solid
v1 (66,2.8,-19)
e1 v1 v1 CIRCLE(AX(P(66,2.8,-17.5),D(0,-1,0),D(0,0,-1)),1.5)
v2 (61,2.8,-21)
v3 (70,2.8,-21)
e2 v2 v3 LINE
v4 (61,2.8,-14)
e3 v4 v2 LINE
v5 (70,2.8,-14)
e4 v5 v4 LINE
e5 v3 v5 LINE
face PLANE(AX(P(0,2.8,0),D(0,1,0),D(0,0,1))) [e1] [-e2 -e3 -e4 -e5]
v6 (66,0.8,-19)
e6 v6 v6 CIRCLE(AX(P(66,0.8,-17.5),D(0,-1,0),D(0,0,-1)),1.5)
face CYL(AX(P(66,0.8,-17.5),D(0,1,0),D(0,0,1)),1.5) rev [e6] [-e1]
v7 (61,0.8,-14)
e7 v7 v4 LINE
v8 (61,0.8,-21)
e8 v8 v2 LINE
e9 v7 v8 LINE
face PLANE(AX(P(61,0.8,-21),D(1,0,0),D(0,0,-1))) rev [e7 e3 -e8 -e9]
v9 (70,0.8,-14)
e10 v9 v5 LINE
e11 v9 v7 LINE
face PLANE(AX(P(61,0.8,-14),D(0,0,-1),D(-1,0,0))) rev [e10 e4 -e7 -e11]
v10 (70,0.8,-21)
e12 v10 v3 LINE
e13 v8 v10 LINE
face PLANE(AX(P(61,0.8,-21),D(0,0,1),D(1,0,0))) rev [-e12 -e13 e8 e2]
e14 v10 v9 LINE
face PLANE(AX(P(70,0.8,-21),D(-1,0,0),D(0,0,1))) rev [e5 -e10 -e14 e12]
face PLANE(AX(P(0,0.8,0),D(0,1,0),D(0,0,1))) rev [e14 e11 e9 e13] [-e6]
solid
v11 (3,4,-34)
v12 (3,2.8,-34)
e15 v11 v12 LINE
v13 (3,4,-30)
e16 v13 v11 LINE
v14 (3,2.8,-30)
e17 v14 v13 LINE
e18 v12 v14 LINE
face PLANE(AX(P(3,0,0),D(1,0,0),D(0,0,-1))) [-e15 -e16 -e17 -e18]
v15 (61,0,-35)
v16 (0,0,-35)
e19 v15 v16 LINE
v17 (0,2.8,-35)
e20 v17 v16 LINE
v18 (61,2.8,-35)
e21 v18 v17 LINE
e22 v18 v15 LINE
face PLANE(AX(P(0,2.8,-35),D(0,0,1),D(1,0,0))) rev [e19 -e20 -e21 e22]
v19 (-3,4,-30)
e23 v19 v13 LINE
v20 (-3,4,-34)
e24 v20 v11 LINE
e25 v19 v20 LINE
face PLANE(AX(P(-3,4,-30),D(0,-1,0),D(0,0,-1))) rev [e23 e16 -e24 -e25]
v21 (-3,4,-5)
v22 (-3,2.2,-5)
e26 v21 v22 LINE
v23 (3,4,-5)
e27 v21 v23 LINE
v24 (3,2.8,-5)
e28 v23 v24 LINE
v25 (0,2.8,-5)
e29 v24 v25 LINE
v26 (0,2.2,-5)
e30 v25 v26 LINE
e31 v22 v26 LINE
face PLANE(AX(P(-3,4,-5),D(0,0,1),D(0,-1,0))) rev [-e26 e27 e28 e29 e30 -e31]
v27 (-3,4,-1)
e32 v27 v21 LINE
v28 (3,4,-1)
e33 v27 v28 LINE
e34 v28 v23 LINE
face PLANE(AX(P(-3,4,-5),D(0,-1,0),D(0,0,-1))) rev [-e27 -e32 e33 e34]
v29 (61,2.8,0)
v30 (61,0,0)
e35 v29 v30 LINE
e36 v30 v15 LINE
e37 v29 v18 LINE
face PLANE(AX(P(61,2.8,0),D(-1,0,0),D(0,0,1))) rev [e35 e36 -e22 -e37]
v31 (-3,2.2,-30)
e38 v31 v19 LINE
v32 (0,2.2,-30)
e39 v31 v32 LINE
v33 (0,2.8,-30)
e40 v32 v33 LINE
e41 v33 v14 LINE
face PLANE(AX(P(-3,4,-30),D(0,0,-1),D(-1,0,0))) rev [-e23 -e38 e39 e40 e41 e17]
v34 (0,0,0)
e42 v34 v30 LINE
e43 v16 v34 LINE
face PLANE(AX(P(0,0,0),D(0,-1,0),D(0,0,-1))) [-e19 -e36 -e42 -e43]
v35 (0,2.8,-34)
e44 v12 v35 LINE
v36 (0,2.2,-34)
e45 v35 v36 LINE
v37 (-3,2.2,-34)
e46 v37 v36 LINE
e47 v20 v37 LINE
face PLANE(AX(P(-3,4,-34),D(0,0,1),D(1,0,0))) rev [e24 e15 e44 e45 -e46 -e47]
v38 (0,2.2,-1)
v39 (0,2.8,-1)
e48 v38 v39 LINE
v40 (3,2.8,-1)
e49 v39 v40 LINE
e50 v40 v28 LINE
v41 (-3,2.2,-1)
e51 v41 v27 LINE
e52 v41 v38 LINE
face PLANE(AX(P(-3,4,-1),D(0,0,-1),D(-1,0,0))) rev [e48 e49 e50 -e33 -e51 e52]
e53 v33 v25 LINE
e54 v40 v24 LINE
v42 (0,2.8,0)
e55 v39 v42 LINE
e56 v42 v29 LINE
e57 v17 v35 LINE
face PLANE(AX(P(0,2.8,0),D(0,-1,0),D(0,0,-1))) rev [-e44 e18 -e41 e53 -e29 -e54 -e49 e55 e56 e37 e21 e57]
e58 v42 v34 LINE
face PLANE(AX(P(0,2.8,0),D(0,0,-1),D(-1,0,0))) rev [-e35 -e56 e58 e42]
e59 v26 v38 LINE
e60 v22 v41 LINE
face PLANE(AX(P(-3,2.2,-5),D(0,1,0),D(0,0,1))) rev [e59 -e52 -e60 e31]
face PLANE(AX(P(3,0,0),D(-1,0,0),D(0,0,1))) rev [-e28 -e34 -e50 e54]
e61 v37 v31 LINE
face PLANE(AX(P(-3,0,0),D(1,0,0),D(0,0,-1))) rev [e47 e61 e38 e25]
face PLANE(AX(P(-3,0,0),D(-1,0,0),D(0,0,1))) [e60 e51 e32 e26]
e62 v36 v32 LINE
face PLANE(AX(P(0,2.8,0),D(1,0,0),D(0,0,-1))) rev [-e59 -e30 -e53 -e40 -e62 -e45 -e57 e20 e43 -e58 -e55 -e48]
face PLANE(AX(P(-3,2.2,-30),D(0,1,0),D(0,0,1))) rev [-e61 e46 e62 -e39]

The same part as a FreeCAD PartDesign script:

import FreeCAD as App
import Part
import Sketcher
from FreeCAD import Vector
Q = App.Units.Quantity

doc = App.newDocument("Part")
body = doc.addObject("PartDesign::Body", "Body")

# Sketch on XZ plane
sketch1 = body.newObject("Sketcher::SketchObject", "Sketch")
sketch1.AttachmentSupport = (doc.getObject("XZ_Plane"), [""])
sketch1.MapMode = "FlatFace"
sketch1.addGeometry([
    Part.LineSegment(Vector(0, -35, 0), Vector(0, 0, 0)),
    Part.LineSegment(Vector(0, 0, 0), Vector(61, 0, 0)),
    Part.LineSegment(Vector(61, 0, 0), Vector(61, -35, 0)),
    Part.LineSegment(Vector(61, -35, 0), Vector(0, -35, 0)),
], False)
sketch1.addConstraint([
    Sketcher.Constraint("Coincident", 0, 2, 1, 1),
    Sketcher.Constraint("Coincident", 1, 2, 2, 1),
    Sketcher.Constraint("Coincident", 2, 2, 3, 1),
    Sketcher.Constraint("Coincident", 3, 2, 0, 1),
    Sketcher.Constraint("Vertical", 0),
    Sketcher.Constraint("Horizontal", 1),
    Sketcher.Constraint("Vertical", 2),
    Sketcher.Constraint("Horizontal", 3),
    Sketcher.Constraint("Coincident", 0, 2, -1, 1),
    Sketcher.Constraint("DistanceX", 1, 1, 1, 2, Q("61 mm")),
    Sketcher.Constraint("DistanceY", 0, 1, 0, 2, Q("35 mm")),
])
pad1 = body.newObject("PartDesign::Pad", "Pad")
pad1.Profile = sketch1
pad1.Length = 2.8
pad1.Reversed = True

# Sketch on YZ plane
sketch2 = body.newObject("Sketcher::SketchObject", "Sketch001")
sketch2.AttachmentSupport = (doc.getObject("YZ_Plane"), [""])
sketch2.MapMode = "FlatFace"
sketch2.addGeometry([
    Part.LineSegment(Vector(4, -5, 0), Vector(2.2, -5, 0)),  # 0
    Part.LineSegment(Vector(2.2, -5, 0), Vector(2.2, -1, 0)),  # 1
    Part.LineSegment(Vector(2.2, -1, 0), Vector(4, -1, 0)),  # 2
    Part.LineSegment(Vector(4, -1, 0), Vector(4, -5, 0)),  # 3
    Part.LineSegment(Vector(4, -34, 0), Vector(2.2, -34, 0)),  # 4
    Part.LineSegment(Vector(2.2, -34, 0), Vector(2.2, -30, 0)),  # 5
    Part.LineSegment(Vector(2.2, -30, 0), Vector(4, -30, 0)),  # 6
    Part.LineSegment(Vector(4, -30, 0), Vector(4, -34, 0)),  # 7
], False)
sketch2.addConstraint([
    Sketcher.Constraint("Coincident", 0, 2, 1, 1),
    Sketcher.Constraint("Coincident", 1, 2, 2, 1),
    Sketcher.Constraint("Coincident", 2, 2, 3, 1),
    Sketcher.Constraint("Coincident", 3, 2, 0, 1),
    Sketcher.Constraint("Coincident", 4, 2, 5, 1),
    Sketcher.Constraint("Coincident", 5, 2, 6, 1),
    Sketcher.Constraint("Coincident", 6, 2, 7, 1),
    Sketcher.Constraint("Coincident", 7, 2, 4, 1),
    Sketcher.Constraint("Horizontal", 0),
    Sketcher.Constraint("Vertical", 1),
    Sketcher.Constraint("Horizontal", 2),
    Sketcher.Constraint("Vertical", 3),
    Sketcher.Constraint("Horizontal", 4),
    Sketcher.Constraint("Vertical", 5),
    Sketcher.Constraint("Horizontal", 6),
    Sketcher.Constraint("Vertical", 7),
    Sketcher.Constraint("Vertical", 1, 2, 4, 2),
    Sketcher.Constraint("Vertical", 3, 2, 6, 2),
    Sketcher.Constraint("Equal", 3, 5),
    Sketcher.Constraint("DistanceY", 1, 1, 1, 2, Q("4 mm")),
    Sketcher.Constraint("DistanceX", 0, 2, 0, 1, Q("1.8 mm")),
    Sketcher.Constraint("DistanceY", 0, 2, -1, 1, Q("5 mm")),
    Sketcher.Constraint("DistanceX", -1, 1, 2, 2, Q("4 mm")),
    Sketcher.Constraint("DistanceY", 4, 2, -1, 1, Q("34 mm")),
])
pad2 = body.newObject("PartDesign::Pad", "Pad001")
pad2.Profile = sketch2
pad2.Length = 6
pad2.Midplane = True
body2 = doc.addObject("PartDesign::Body", "Body001")

# Sketch on XZ plane
sketch3 = body2.newObject("Sketcher::SketchObject", "Sketch002")
sketch3.AttachmentSupport = (doc.getObject("XZ_Plane001"), [""])
sketch3.MapMode = "FlatFace"
sketch3.AttachmentOffset = App.Placement(Vector(0, 0, -2.8), App.Rotation())
sketch3.addGeometry([
    Part.LineSegment(Vector(61, -14, 0), Vector(61, -21, 0)),  # 0
    Part.LineSegment(Vector(61, -21, 0), Vector(70, -21, 0)),  # 1
    Part.LineSegment(Vector(70, -21, 0), Vector(70, -14, 0)),  # 2
    Part.LineSegment(Vector(70, -14, 0), Vector(61, -14, 0)),  # 3
    Part.Circle(Vector(66, -17.5, 0), Vector(0, 0, 1), 1.5),  # 4
], False)
sketch3.addConstraint([
    Sketcher.Constraint("Coincident", 0, 2, 1, 1),
    Sketcher.Constraint("Coincident", 1, 2, 2, 1),
    Sketcher.Constraint("Coincident", 2, 2, 3, 1),
    Sketcher.Constraint("Coincident", 3, 2, 0, 1),
    Sketcher.Constraint("Vertical", 0),
    Sketcher.Constraint("Horizontal", 1),
    Sketcher.Constraint("Vertical", 2),
    Sketcher.Constraint("Horizontal", 3),
    Sketcher.Constraint("Diameter", 4, Q("3 mm")),
    Sketcher.Constraint("DistanceX", 1, 1, 1, 2, Q("9 mm")),
    Sketcher.Constraint("DistanceY", 0, 2, 0, 1, Q("7 mm")),
    Sketcher.Constraint("DistanceX", -1, 1, 4, 3, Q("66 mm")),
    Sketcher.Constraint("DistanceX", -1, 1, 0, 2, Q("61 mm")),
    Sketcher.Constraint("DistanceY", 0, 2, -1, 1, Q("21 mm")),
    Sketcher.Constraint("DistanceY", 4, 3, -1, 1, Q("17.5 mm")),
])
pad3 = body2.newObject("PartDesign::Pad", "Pad002")
pad3.Profile = sketch3
pad3.Length = 2

doc.recompute()
